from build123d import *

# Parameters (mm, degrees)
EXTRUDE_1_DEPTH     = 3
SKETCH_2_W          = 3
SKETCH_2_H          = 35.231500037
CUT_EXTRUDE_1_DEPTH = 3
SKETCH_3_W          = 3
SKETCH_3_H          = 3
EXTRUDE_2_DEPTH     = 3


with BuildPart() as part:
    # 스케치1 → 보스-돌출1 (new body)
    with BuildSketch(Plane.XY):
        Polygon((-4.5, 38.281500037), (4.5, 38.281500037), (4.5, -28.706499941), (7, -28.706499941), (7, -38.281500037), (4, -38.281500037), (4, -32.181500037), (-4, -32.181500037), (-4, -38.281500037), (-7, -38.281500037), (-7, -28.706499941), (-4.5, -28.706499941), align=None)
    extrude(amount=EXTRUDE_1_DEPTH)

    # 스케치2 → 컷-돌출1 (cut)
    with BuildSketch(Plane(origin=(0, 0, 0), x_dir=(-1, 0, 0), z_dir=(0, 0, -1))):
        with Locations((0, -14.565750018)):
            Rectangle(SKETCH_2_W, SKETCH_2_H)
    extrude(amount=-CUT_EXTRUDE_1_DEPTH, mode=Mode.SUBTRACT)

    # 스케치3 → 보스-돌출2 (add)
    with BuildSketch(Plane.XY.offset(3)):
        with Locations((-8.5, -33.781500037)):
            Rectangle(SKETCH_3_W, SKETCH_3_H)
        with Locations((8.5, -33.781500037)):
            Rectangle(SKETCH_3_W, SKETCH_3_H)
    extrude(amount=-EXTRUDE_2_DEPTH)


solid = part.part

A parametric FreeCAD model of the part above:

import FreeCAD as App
import Part
import Sketcher

V = App.Vector
Q = App.Units.Quantity


def add_polygon(sketch, points):
    """Adds a closed chain of lines whose ends are joined by coincident constraints."""
    first, n = sketch.GeometryCount, len(points)
    for a, b in zip(points, points[1:] + points[:1]):
        sketch.addGeometry(Part.LineSegment(App.Vector(*a, 0), App.Vector(*b, 0)), False)
    for i in range(n):
        sketch.addConstraint(Sketcher.Constraint("Coincident", first + i, 2, first + (i + 1) % n, 1))

doc = App.newDocument("Part")
body = doc.addObject("PartDesign::Body", "Body")

# Sketch on XY plane
sketch1 = doc.addObject("Sketcher::SketchObject", "Sketch")
body.addObject(sketch1)
sketch1.AttachmentSupport = (doc.XY_Plane, [""])
sketch1.MapMode = "FlatFace"
add_polygon(sketch1, [(4.5, 38.3), (-4.5, 38.3), (-4.5, -28.7), (-7, -28.7), (-7, -38.3), (-4, -38.3), (-4, -32.2), (4, -32.2), (4, -38.3), (7, -38.3), (7, -28.7), (4.5, -28.7)])  # lines 0-11
sketch1.addConstraint([
    Sketcher.Constraint("Horizontal", 0),
    Sketcher.Constraint("Vertical", 1),
    Sketcher.Constraint("Horizontal", 2),
    Sketcher.Constraint("Vertical", 3),
    Sketcher.Constraint("Horizontal", 4),
    Sketcher.Constraint("Vertical", 5),
    Sketcher.Constraint("Horizontal", 6),
    Sketcher.Constraint("Vertical", 7),
    Sketcher.Constraint("Horizontal", 8),
    Sketcher.Constraint("Vertical", 9),
    Sketcher.Constraint("Horizontal", 10),
    Sketcher.Constraint("Vertical", 11),
    Sketcher.Constraint("Symmetric", 4, 2, 7, 2, -2),
    Sketcher.Constraint("Symmetric", 2, 2, 9, 2, -2),
    Sketcher.Constraint("Equal", 2, 10),
    Sketcher.Constraint("DistanceX", 0, 2, 0, 1, Q("9 mm")),
    Sketcher.Constraint("DistanceX", 4, 1, 4, 2, Q("3 mm")),
    Sketcher.Constraint("DistanceX", 6, 1, 6, 2, Q("8 mm")),
    Sketcher.Constraint("DistanceY", 5, 1, 5, 2, Q("6.1 mm")),
    Sketcher.Constraint("DistanceY", 1, 2, 1, 1, Q("66.988 mm")),
    Sketcher.Constraint("DistanceY", 3, 2, 3, 1, Q("9.575 mm")),
    Sketcher.Constraint("DistanceY", -1, 1, 0, 2, Q("38.2815 mm")),
])
pad1 = doc.addObject("PartDesign::Pad", "Pad")
body.addObject(pad1)
pad1.Profile = sketch1
pad1.Length = 3

# Sketch on XY plane
sketch2 = doc.addObject("Sketcher::SketchObject", "Sketch001")
body.addObject(sketch2)
sketch2.AttachmentSupport = (doc.XY_Plane, [""])
sketch2.MapMode = "FlatFace"
add_polygon(sketch2, [(1.5, 3.1), (1.5, -32.2), (-1.5, -32.2), (-1.5, 3.1)])  # lines 0-3
sketch2.addConstraint([
    Sketcher.Constraint("Vertical", 0),
    Sketcher.Constraint("Horizontal", 1),
    Sketcher.Constraint("Vertical", 2),
    Sketcher.Constraint("Horizontal", 3),
    Sketcher.Constraint("DistanceX", 1, 2, 1, 1, Q("3 mm")),
    Sketcher.Constraint("DistanceX", -1, 1, 0, 2, Q("1.5 mm")),
    Sketcher.Constraint("DistanceY", -1, 1, 2, 2, Q("3.05 mm")),
    Sketcher.Constraint("DistanceY", 0, 2, 0, 1, Q("35.2315 mm")),
])
pocket1 = doc.addObject("PartDesign::Pocket", "Pocket")
body.addObject(pocket1)
pocket1.Profile = sketch2
pocket1.Length = 3
pocket1.Reversed = True

# Sketch on XY plane
sketch3 = doc.addObject("Sketcher::SketchObject", "Sketch002")
body.addObject(sketch3)
sketch3.AttachmentSupport = (doc.XY_Plane, [""])
sketch3.MapMode = "FlatFace"
sketch3.AttachmentOffset = App.Placement(V(0, 0, 3), App.Rotation())
add_polygon(sketch3, [(-10, -32.3), (-10, -35.3), (-7, -35.3), (-7, -32.3)])  # lines 0-3
add_polygon(sketch3, [(7, -32.3), (7, -35.3), (10, -35.3), (10, -32.3)])  # lines 4-7
sketch3.addConstraint([
    Sketcher.Constraint("Vertical", 0),
    Sketcher.Constraint("Horizontal", 1),
    Sketcher.Constraint("Vertical", 2),
    Sketcher.Constraint("Horizontal", 3),
    Sketcher.Constraint("Vertical", 4),
    Sketcher.Constraint("Horizontal", 5),
    Sketcher.Constraint("Vertical", 6),
    Sketcher.Constraint("Horizontal", 7),
    Sketcher.Constraint("Symmetric", 1, 2, 4, 2, -2),
    Sketcher.Constraint("Symmetric", 3, 2, 6, 2, -2),
    Sketcher.Constraint("Equal", 7, 0),
    Sketcher.Constraint("DistanceX", 1, 1, 1, 2, Q("3 mm")),
    Sketcher.Constraint("DistanceX", 0, 2, -1, 1, Q("10 mm")),
    Sketcher.Constraint("DistanceY", 0, 2, -1, 1, Q("35.2815 mm")),
])
pad2 = doc.addObject("PartDesign::Pad", "Pad001")
body.addObject(pad2)
pad2.Profile = sketch3
pad2.Length = 3
pad2.Reversed = True

doc.recompute()
